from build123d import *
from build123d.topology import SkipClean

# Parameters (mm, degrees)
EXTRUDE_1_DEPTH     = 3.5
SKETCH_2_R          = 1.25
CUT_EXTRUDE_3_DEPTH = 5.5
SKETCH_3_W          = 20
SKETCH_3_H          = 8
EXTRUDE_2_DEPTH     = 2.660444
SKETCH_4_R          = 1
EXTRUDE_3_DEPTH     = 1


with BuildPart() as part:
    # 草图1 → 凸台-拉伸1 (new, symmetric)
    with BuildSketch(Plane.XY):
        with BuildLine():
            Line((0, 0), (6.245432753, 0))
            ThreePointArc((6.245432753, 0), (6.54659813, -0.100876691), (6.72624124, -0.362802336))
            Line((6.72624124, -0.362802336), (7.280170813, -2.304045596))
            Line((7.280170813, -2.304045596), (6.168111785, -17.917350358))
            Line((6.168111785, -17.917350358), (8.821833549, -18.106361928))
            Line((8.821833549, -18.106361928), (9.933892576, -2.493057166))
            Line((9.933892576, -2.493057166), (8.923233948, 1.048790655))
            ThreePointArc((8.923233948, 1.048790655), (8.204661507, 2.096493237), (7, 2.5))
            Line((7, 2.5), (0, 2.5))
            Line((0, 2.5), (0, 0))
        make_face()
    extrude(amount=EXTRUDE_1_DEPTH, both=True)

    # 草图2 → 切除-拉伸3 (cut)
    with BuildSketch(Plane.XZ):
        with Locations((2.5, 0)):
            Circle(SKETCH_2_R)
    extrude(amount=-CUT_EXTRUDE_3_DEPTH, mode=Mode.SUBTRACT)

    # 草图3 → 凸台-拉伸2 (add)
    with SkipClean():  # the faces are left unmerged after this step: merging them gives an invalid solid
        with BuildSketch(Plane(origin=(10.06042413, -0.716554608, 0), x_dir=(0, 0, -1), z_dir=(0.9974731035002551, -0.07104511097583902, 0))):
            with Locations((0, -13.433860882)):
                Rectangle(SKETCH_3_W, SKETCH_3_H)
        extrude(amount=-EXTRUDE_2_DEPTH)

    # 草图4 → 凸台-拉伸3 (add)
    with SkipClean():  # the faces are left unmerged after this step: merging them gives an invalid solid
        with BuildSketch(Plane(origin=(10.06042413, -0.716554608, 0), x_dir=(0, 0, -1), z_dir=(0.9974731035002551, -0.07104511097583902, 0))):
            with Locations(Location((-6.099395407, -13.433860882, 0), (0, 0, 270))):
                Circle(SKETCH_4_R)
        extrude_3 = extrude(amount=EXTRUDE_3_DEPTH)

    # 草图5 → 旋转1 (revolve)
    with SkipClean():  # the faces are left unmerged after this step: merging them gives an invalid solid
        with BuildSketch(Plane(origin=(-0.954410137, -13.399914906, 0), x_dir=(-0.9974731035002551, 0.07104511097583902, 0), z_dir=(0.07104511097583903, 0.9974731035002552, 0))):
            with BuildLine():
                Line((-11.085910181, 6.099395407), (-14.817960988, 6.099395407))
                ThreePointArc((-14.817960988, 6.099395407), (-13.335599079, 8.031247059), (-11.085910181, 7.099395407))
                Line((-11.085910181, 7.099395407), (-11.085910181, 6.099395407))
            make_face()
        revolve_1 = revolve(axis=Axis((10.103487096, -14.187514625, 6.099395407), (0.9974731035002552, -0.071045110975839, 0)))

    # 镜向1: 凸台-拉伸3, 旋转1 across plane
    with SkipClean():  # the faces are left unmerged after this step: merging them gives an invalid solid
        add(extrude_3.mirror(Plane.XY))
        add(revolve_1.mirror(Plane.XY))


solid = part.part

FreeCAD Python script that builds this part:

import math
import FreeCAD as App
import Part
import Sketcher
Q = App.Units.Quantity


def add_polygon(sketch, points):
    """Adds a closed chain of lines whose ends are joined by coincident constraints."""
    first, n = sketch.GeometryCount, len(points)
    for a, b in zip(points, points[1:] + points[:1]):
        sketch.addGeometry(Part.LineSegment(App.Vector(*a, 0), App.Vector(*b, 0)), False)
    for i in range(n):
        sketch.addConstraint(Sketcher.Constraint("Coincident", first + i, 2, first + (i + 1) % n, 1))

doc = App.newDocument("Part")
body = doc.addObject("PartDesign::Body", "Body")

# Sketch on XY plane
sketch1 = doc.addObject("Sketcher::SketchObject", "Sketch")
body.addObject(sketch1)
sketch1.AttachmentSupport = (doc.XY_Plane, [""])
sketch1.MapMode = "FlatFace"
sketch1.addGeometry(Part.LineSegment(App.Vector(0, 0, 0), App.Vector(6.2, 0, 0)), False)
sketch1.addGeometry(Part.ArcOfCircle(Part.Circle(App.Vector(6.2, -0.5, 0), App.Vector(0, 0, 1), 0.5), math.radians(16), math.radians(90)), False)
sketch1.addGeometry(Part.LineSegment(App.Vector(6.7, -0.4, 0), App.Vector(7.3, -2.3, 0)), False)
sketch1.addGeometry(Part.LineSegment(App.Vector(7.3, -2.3, 0), App.Vector(6.2, -17.9, 0)), False)
sketch1.addGeometry(Part.LineSegment(App.Vector(6.2, -17.9, 0), App.Vector(8.8, -18.1, 0)), False)
sketch1.addGeometry(Part.LineSegment(App.Vector(8.8, -18.1, 0), App.Vector(9.9, -2.5, 0)), False)
sketch1.addGeometry(Part.LineSegment(App.Vector(9.9, -2.5, 0), App.Vector(8.9, 1, 0)), False)
sketch1.addGeometry(Part.ArcOfCircle(Part.Circle(App.Vector(7, 0.5, 0), App.Vector(0, 0, 1), 2), math.radians(16), math.radians(90)), False)
sketch1.addGeometry(Part.LineSegment(App.Vector(7, 2.5, 0), App.Vector(0, 2.5, 0)), False)
sketch1.addGeometry(Part.LineSegment(App.Vector(0, 2.5, 0), App.Vector(0, 0, 0)), False)
sketch1.addConstraint(Sketcher.Constraint("Tangent", 0, 2, 1, 2))
sketch1.addConstraint(Sketcher.Constraint("Tangent", 1, 1, 2, 1))
sketch1.addConstraint(Sketcher.Constraint("Coincident", 2, 2, 3, 1))
sketch1.addConstraint(Sketcher.Constraint("Coincident", 3, 2, 4, 1))
sketch1.addConstraint(Sketcher.Constraint("Coincident", 4, 2, 5, 1))
sketch1.addConstraint(Sketcher.Constraint("Coincident", 5, 2, 6, 1))
sketch1.addConstraint(Sketcher.Constraint("Tangent", 6, 2, 7, 1))
sketch1.addConstraint(Sketcher.Constraint("Tangent", 7, 2, 8, 1))
sketch1.addConstraint(Sketcher.Constraint("Coincident", 8, 2, 9, 1))
sketch1.addConstraint(Sketcher.Constraint("Coincident", 9, 2, 0, 1))
sketch1.addConstraint(Sketcher.Constraint("Horizontal", 0))
sketch1.addConstraint(Sketcher.Constraint("Horizontal", 8))
sketch1.addConstraint(Sketcher.Constraint("Vertical", 9))
sketch1.addConstraint(Sketcher.Constraint("Coincident", 9, 2, -1, 1))
sketch1.addConstraint(Sketcher.Constraint("Perpendicular", 3, 4))
sketch1.addConstraint(Sketcher.Constraint("Perpendicular", 4, 5))
sketch1.addConstraint(Sketcher.Constraint("Parallel", 2, 6))
sketch1.addConstraint(Sketcher.Constraint("Equal", 3, 5))
sketch1.addConstraint(Sketcher.Constraint("Radius", 7, Q("2 mm")))
sketch1.addConstraint(Sketcher.Constraint("Radius", 1, Q("0.5 mm")))
sketch1.addConstraint(Sketcher.Constraint("DistanceX", 8, 2, 8, 1, Q("7 mm")))
sketch1.addConstraint(Sketcher.Constraint("DistanceY", 9, 2, 9, 1, Q("2.5 mm")))
sketch1.addConstraint(Sketcher.Constraint("DistanceX", 1, 3, 4, 2, Q("2.576401 mm")))
sketch1.addConstraint(Sketcher.Constraint("DistanceX", 0, 2, 6, 2, Q("2.677801 mm")))
sketch1.addConstraint(Sketcher.Constraint("Distance", 2, Q("2.018728 mm")))
sketch1.addConstraint(Sketcher.Constraint("Distance", 6, Q("3.683221 mm")))
sketch1.addConstraint(Sketcher.Constraint("DistanceX", -1, 1, 2, 2, Q("7.280171 mm")))
pad1 = doc.addObject("PartDesign::Pad", "Pad")
body.addObject(pad1)
pad1.Profile = sketch1
pad1.Length = 7
pad1.Midplane = True

# Sketch on XZ plane
sketch2 = doc.addObject("Sketcher::SketchObject", "Sketch001")
body.addObject(sketch2)
sketch2.AttachmentSupport = (doc.XZ_Plane, [""])
sketch2.MapMode = "FlatFace"
sketch2.addGeometry(Part.Circle(App.Vector(2.5, 0, 0), App.Vector(0, 0, 1), 1.2), False)
sketch2.addConstraint(Sketcher.Constraint("PointOnObject", 0, 3, -1))
sketch2.addConstraint(Sketcher.Constraint("Diameter", 0, Q("2.5 mm")))
sketch2.addConstraint(Sketcher.Constraint("DistanceX", -1, 1, 0, 3, Q("2.5 mm")))
pocket1 = doc.addObject("PartDesign::Pocket", "Pocket")
body.addObject(pocket1)
pocket1.Profile = sketch2
pocket1.Length = 5.5

# Sketch on an angled plane
sketch3 = doc.addObject("Sketcher::SketchObject", "Sketch002")
body.addObject(sketch3)
sketch3.Placement = App.Placement(App.Vector(10.060424, -0.716555, 0), App.Rotation(App.Vector(0, 0, -1), App.Vector(0.071045111, 0.997473104, 0), App.Vector(0.997473104, -0.071045111, 0), "ZXY"))
add_polygon(sketch3, [(-10, -9), (-10, -17), (10, -17), (10, -9)])  # lines 0-3
sketch3.addConstraint(Sketcher.Constraint("Vertical", 0))
sketch3.addConstraint(Sketcher.Constraint("Horizontal", 1))
sketch3.addConstraint(Sketcher.Constraint("Vertical", 2))
sketch3.addConstraint(Sketcher.Constraint("Horizontal", 3))
sketch3.addConstraint(Sketcher.Constraint("DistanceX", 1, 1, 1, 2, Q("20 mm")))
sketch3.addConstraint(Sketcher.Constraint("DistanceY", 0, 2, 0, 1, Q("8 mm")))
sketch3.addConstraint(Sketcher.Constraint("DistanceX", 0, 2, -1, 1, Q("10 mm")))
sketch3.addConstraint(Sketcher.Constraint("DistanceY", 0, 2, -1, 1, Q("17.433861 mm")))
pad2 = doc.addObject("PartDesign::Pad", "Pad001")
body.addObject(pad2)
pad2.Profile = sketch3
pad2.Length = 2.660444
pad2.Reversed = True

# Sketch on an angled plane
sketch4 = doc.addObject("Sketcher::SketchObject", "Sketch003")
body.addObject(sketch4)
sketch4.Placement = App.Placement(App.Vector(10.060424, -0.716555, 0), App.Rotation(App.Vector(0, 0, -1), App.Vector(0.071045111, 0.997473104, 0), App.Vector(0.997473104, -0.071045111, 0), "ZXY"))
sketch4.addGeometry(Part.Circle(App.Vector(-6.1, -13.4, 0), App.Vector(0, 0, 1), 1), False)
sketch4.addConstraint(Sketcher.Constraint("Diameter", 0, Q("2 mm")))
sketch4.addConstraint(Sketcher.Constraint("DistanceY", 0, 3, -1, 1, Q("13.433861 mm")))
sketch4.addConstraint(Sketcher.Constraint("DistanceX", 0, 3, -1, 1, Q("6.099395 mm")))
pad3 = doc.addObject("PartDesign::Pad", "Pad002")
body.addObject(pad3)
pad3.Profile = sketch4
pad3.Length = 1

# Sketch on an angled plane
sketch5 = doc.addObject("Sketcher::SketchObject", "Sketch004")
body.addObject(sketch5)
sketch5.Placement = App.Placement(App.Vector(-0.95441, -13.399915, 0), App.Rotation(App.Vector(-0.997473104, 0.071045111, 0), App.Vector(0, 0, 1.000000001), App.Vector(0.071045111, 0.997473104, 0), "ZXY"))
sketch5.addGeometry(Part.LineSegment(App.Vector(-14.8, 6.1, 0), App.Vector(-11.1, 6.1, 0)), False)
sketch5.addGeometry(Part.LineSegment(App.Vector(-11.1, 6.1, 0), App.Vector(-11.1, 7.1, 0)), False)
sketch5.addGeometry(Part.ArcOfCircle(Part.Circle(App.Vector(-12.8, 6.1, 0), App.Vector(0, 0, 1), 2), math.radians(30), math.radians(180)), False)
sketch5.addGeometry(Part.LineSegment(App.Vector(-11.1, 6.1, 0), App.Vector(-14.8, 6.1, 0)), True)  # axis
sketch5.addConstraint(Sketcher.Constraint("Coincident", 0, 2, 1, 1))
sketch5.addConstraint(Sketcher.Constraint("Coincident", 1, 2, 2, 1))
sketch5.addConstraint(Sketcher.Constraint("Coincident", 2, 2, 0, 1))
sketch5.addConstraint(Sketcher.Constraint("Horizontal", 0))
sketch5.addConstraint(Sketcher.Constraint("Vertical", 1))
sketch5.addConstraint(Sketcher.Constraint("Horizontal", 3))
sketch5.addConstraint(Sketcher.Constraint("Coincident", 3, 1, 0, 2))
sketch5.addConstraint(Sketcher.Constraint("Horizontal", 2, 3, 0, 2))
sketch5.addConstraint(Sketcher.Constraint("Equal", 0, 3))
sketch5.addConstraint(Sketcher.Constraint("Radius", 2, Q("2 mm")))
sketch5.addConstraint(Sketcher.Constraint("DistanceY", 1, 1, 1, 2, Q("1 mm")))
sketch5.addConstraint(Sketcher.Constraint("DistanceX", 2, 3, -1, 1, Q("12.817961 mm")))
sketch5.addConstraint(Sketcher.Constraint("DistanceY", -1, 1, 2, 3, Q("6.099395 mm")))
revolution = doc.addObject("PartDesign::Revolution", "Revolution")
body.addObject(revolution)
revolution.Profile = sketch5
revolution.ReferenceAxis = (sketch5, ["Axis0"])
revolution.Angle = 360
doc.recompute()

mirrored = doc.addObject("PartDesign::Mirrored", "Mirrored")
body.addObject(mirrored)
mirrored.Originals = [pad3, revolution]
mirrored.MirrorPlane = (doc.XY_Plane, [""])
body.Tip = mirrored

doc.recompute()
